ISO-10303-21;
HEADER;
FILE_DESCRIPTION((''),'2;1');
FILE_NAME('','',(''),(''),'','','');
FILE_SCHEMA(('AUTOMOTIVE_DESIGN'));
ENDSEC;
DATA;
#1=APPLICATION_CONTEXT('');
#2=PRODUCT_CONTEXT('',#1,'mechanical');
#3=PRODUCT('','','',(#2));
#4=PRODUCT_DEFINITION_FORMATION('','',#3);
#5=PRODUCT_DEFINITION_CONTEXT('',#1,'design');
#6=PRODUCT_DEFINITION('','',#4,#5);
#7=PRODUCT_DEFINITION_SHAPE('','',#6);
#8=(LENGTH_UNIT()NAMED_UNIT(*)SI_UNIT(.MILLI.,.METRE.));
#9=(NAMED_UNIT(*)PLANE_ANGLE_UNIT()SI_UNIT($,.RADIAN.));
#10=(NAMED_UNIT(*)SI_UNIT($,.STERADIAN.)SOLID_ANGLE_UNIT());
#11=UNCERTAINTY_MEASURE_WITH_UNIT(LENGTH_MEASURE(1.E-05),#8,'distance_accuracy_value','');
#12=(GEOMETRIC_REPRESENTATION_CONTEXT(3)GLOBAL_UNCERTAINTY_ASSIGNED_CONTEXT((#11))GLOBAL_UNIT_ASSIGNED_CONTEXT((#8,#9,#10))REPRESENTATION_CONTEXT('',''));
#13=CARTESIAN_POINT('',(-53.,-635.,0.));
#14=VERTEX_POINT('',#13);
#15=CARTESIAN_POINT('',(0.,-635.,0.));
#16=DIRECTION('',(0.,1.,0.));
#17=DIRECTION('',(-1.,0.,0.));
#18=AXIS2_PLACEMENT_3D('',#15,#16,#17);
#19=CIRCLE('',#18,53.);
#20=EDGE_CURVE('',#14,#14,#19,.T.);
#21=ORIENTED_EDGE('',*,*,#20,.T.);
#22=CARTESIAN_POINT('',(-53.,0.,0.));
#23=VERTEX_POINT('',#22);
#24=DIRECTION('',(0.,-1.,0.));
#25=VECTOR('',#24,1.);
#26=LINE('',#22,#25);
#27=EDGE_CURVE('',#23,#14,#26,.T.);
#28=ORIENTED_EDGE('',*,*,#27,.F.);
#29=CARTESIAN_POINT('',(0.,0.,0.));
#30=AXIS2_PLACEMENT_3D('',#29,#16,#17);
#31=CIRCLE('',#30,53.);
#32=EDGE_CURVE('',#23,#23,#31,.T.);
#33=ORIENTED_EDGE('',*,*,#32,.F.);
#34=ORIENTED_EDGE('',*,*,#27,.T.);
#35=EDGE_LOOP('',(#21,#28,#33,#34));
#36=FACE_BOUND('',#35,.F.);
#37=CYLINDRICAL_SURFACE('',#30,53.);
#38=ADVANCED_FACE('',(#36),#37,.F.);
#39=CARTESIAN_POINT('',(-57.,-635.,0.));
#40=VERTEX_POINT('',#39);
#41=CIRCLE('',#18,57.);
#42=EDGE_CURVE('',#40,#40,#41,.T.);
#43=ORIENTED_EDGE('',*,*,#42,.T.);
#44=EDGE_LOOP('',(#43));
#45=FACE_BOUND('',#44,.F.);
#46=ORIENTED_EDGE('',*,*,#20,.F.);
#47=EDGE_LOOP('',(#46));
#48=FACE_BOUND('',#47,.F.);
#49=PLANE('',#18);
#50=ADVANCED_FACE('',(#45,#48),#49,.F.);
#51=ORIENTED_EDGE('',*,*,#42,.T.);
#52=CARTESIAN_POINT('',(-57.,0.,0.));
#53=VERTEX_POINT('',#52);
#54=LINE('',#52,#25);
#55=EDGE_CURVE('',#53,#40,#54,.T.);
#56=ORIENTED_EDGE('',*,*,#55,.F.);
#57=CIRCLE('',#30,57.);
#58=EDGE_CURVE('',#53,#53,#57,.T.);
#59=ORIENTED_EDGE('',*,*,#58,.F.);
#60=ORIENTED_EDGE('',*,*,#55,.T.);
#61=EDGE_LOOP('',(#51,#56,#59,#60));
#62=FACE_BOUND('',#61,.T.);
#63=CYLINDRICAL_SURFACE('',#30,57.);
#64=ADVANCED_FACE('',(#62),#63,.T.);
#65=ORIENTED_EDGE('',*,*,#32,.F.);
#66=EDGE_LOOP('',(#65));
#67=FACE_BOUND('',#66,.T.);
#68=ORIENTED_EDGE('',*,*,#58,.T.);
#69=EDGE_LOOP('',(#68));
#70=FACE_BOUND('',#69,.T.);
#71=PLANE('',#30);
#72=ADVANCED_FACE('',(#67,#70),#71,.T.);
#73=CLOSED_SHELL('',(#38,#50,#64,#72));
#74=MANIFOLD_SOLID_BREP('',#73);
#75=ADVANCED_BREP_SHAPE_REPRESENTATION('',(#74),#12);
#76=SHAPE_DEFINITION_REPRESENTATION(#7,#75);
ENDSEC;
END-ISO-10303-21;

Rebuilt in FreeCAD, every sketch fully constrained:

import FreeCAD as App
import Part
import Sketcher

V = App.Vector
Q = App.Units.Quantity

doc = App.newDocument("Part")
body = doc.addObject("PartDesign::Body", "Body")

sketch1 = body.newObject("Sketcher::SketchObject", "Sketch")
sketch1.AttachmentSupport = (doc.getObject("XZ_Plane"), [""])
sketch1.MapMode = "FlatFace"
sketch1.addGeometry(Part.Circle(V(0, 0, 0), V(0, 0, 1), 57), False)
sketch1.addGeometry(Part.Circle(V(0, 0, 0), V(0, 0, 1), 53), False)
sketch1.addConstraint(Sketcher.Constraint("Coincident", 0, 3, -1, 1))
sketch1.addConstraint(Sketcher.Constraint("Coincident", 1, 3, -1, 1))
sketch1.addConstraint(Sketcher.Constraint("Diameter", 0, Q("114 mm")))
sketch1.addConstraint(Sketcher.Constraint("Diameter", 1, Q("106 mm")))
pad1 = body.newObject("PartDesign::Pad", "Pad")
pad1.Profile = sketch1
pad1.Length = 635

doc.recompute()
